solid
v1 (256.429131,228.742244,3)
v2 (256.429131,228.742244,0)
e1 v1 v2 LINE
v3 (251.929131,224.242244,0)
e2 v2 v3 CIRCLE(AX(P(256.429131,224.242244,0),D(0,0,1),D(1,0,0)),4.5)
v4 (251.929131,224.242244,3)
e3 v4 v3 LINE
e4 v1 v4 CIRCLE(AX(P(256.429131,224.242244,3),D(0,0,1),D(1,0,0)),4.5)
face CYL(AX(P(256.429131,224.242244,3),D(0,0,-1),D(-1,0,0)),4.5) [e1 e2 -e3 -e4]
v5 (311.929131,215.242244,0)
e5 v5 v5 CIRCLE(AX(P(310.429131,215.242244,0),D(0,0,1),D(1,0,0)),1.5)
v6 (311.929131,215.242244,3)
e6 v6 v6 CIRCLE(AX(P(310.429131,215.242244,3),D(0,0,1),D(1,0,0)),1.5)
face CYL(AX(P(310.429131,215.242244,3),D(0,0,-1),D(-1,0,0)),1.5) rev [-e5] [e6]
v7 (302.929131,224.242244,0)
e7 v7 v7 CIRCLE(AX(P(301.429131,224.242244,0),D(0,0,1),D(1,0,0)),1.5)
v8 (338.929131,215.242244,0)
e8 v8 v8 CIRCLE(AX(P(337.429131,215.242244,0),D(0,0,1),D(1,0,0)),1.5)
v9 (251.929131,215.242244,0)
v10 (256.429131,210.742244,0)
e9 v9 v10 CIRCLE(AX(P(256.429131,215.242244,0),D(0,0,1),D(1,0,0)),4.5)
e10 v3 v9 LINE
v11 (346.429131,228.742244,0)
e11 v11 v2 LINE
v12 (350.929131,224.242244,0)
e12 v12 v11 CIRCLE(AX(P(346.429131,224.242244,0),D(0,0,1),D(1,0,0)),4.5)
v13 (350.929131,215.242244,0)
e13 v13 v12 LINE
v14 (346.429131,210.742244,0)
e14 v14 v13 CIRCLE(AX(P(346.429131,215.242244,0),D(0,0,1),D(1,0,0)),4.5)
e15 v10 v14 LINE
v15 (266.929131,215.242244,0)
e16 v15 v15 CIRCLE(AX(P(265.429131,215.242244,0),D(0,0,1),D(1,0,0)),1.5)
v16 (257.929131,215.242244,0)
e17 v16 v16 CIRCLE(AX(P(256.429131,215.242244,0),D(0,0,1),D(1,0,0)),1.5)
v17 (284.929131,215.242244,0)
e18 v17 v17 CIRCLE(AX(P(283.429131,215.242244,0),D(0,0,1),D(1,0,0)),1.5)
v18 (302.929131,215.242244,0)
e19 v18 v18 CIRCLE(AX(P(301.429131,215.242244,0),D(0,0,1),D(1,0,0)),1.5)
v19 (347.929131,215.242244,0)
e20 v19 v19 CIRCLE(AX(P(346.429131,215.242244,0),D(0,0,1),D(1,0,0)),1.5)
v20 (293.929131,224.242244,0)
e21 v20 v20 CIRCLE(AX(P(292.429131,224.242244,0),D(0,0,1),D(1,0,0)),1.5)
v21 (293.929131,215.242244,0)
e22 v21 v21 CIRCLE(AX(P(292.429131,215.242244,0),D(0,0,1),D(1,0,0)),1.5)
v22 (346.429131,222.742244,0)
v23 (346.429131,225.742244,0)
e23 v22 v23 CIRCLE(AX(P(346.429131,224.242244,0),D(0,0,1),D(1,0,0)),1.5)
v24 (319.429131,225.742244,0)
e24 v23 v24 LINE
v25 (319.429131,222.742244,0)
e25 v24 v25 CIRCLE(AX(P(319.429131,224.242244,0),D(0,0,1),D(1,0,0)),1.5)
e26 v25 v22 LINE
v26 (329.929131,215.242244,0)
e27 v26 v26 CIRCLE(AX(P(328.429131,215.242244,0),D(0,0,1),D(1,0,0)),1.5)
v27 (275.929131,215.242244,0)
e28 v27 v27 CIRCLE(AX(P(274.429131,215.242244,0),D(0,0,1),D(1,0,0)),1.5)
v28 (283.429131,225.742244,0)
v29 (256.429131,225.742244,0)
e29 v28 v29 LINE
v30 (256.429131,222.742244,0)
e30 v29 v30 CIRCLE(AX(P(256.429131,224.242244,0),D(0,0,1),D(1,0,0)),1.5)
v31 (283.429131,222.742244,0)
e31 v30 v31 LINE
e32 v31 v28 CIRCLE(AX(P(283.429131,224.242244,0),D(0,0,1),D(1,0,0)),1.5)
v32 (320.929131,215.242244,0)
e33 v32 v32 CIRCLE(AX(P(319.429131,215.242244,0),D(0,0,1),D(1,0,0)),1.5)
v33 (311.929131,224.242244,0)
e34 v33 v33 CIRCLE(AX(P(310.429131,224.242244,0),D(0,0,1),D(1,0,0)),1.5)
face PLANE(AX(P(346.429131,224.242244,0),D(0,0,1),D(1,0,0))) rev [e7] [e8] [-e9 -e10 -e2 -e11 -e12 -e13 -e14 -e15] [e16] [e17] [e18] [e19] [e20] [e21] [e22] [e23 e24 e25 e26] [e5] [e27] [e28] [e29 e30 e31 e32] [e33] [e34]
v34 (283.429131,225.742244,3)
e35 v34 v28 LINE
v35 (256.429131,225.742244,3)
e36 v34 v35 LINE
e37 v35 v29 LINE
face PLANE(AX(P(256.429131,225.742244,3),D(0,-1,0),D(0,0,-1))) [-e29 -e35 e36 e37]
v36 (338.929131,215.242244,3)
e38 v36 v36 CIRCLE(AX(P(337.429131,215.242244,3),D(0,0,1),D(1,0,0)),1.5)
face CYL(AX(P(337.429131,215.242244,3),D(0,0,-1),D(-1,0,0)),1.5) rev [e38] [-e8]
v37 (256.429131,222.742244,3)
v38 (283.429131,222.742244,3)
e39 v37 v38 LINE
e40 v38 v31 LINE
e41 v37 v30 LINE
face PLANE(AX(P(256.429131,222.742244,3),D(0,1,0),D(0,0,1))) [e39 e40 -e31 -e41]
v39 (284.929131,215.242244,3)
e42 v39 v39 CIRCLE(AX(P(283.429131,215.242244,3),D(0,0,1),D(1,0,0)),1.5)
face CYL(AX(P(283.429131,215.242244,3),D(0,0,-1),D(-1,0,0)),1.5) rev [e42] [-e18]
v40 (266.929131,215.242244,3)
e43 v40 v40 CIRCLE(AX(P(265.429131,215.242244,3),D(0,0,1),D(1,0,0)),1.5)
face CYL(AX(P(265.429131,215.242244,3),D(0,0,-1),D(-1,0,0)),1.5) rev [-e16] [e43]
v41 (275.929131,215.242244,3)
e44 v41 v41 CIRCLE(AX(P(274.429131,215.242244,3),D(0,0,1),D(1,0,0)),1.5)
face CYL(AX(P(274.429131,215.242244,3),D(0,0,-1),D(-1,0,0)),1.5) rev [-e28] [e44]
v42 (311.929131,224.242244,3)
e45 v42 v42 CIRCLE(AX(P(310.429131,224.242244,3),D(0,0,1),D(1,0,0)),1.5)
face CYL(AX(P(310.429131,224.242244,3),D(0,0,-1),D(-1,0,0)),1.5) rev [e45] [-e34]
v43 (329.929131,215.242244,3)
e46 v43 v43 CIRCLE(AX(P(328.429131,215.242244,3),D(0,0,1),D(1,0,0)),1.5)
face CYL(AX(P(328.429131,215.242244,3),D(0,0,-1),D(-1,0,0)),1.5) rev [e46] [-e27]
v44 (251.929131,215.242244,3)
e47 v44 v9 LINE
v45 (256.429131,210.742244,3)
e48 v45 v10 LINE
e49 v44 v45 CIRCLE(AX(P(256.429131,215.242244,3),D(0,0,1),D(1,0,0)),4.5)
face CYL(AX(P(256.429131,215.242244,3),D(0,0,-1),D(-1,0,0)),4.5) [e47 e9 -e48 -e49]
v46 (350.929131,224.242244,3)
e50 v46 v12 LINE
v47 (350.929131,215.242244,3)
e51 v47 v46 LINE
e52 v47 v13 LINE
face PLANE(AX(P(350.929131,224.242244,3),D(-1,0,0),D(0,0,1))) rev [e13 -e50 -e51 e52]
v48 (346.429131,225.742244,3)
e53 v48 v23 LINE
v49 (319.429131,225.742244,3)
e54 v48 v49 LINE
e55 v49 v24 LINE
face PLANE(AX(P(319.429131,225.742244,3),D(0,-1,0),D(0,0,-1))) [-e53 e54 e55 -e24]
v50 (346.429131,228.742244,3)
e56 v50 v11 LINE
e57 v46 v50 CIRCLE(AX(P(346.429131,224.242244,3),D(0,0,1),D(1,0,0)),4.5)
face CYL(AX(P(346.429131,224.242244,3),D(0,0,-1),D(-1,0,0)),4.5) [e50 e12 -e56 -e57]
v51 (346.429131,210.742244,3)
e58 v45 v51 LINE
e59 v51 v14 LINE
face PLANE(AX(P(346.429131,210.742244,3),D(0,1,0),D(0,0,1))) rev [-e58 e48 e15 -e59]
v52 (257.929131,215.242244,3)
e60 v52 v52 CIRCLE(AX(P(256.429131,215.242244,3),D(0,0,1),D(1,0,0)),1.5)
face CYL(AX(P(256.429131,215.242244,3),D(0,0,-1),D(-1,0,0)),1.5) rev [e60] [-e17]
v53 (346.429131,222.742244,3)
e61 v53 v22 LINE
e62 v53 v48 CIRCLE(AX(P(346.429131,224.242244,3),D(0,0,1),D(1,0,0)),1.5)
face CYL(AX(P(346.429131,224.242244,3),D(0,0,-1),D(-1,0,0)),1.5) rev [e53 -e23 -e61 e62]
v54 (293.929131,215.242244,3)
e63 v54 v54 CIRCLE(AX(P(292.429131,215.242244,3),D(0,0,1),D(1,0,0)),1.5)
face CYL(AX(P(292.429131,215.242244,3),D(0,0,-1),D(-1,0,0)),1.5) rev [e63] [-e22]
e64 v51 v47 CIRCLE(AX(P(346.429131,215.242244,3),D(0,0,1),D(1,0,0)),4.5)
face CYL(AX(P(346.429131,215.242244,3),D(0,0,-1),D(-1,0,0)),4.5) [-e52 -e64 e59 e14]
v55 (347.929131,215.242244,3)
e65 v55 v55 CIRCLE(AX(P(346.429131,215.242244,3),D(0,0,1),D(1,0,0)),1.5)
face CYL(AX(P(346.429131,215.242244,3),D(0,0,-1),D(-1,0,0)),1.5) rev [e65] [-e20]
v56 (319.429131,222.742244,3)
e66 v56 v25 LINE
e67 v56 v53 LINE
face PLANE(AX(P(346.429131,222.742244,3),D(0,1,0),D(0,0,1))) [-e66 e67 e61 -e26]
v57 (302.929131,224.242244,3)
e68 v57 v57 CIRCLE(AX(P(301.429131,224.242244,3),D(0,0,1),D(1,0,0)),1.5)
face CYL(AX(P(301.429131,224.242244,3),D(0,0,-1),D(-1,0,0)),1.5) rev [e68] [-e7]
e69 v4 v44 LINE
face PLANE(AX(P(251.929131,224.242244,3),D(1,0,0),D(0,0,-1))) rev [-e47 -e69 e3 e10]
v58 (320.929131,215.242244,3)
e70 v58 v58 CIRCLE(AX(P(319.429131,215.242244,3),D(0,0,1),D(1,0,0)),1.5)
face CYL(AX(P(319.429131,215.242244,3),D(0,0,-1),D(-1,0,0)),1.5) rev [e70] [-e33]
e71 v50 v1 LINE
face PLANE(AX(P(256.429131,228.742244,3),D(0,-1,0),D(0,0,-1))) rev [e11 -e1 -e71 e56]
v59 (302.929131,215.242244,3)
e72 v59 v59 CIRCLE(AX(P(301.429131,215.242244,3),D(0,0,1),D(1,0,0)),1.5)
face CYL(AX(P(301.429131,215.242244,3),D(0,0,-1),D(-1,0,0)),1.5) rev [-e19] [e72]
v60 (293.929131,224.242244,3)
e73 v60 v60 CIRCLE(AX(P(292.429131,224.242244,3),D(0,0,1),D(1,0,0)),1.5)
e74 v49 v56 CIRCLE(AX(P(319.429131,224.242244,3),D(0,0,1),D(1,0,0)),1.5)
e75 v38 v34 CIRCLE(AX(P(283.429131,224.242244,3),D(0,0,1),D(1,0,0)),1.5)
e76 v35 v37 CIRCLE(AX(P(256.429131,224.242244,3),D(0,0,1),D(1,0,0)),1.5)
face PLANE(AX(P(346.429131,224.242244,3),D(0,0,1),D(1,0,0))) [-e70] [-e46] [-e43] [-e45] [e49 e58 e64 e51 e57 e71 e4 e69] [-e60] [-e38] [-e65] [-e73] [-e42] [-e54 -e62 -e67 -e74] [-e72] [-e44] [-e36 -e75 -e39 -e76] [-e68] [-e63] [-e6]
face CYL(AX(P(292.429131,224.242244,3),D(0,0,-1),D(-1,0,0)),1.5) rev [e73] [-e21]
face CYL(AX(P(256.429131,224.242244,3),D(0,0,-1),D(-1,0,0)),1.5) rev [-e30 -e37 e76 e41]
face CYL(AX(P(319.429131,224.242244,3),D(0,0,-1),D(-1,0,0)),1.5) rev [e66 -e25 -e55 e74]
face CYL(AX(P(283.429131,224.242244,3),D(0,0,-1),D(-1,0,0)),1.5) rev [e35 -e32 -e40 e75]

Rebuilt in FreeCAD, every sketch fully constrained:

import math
import FreeCAD as App
import Part
import Sketcher

doc = App.newDocument("Part")
body = doc.addObject("PartDesign::Body", "Body")

# Sketch on XY plane
sketch1 = doc.addObject("Sketcher::SketchObject", "Sketch")
body.addObject(sketch1)
sketch1.AttachmentSupport = (doc.XY_Plane, [""])
sketch1.MapMode = "FlatFace"
sketch1.addGeometry(Part.LineSegment(App.Vector(346.4, 228.7, 0), App.Vector(256.4, 228.7, 0)), False)
sketch1.addGeometry(Part.ArcOfCircle(Part.Circle(App.Vector(256.4, 224.2, 0), App.Vector(0, 0, 1), 4.5), math.radians(90), math.radians(180)), False)
sketch1.addGeometry(Part.LineSegment(App.Vector(251.9, 224.2, 0), App.Vector(251.9, 215.2, 0)), False)
sketch1.addGeometry(Part.ArcOfCircle(Part.Circle(App.Vector(256.4, 215.2, 0), App.Vector(0, 0, 1), 4.5), math.radians(180), math.radians(270)), False)
sketch1.addGeometry(Part.LineSegment(App.Vector(256.4, 210.7, 0), App.Vector(346.4, 210.7, 0)), False)
sketch1.addGeometry(Part.ArcOfCircle(Part.Circle(App.Vector(346.4, 215.2, 0), App.Vector(0, 0, 1), 4.5), math.radians(-90), math.radians(0)), False)
sketch1.addGeometry(Part.LineSegment(App.Vector(350.9, 215.2, 0), App.Vector(350.9, 224.2, 0)), False)
sketch1.addGeometry(Part.ArcOfCircle(Part.Circle(App.Vector(346.4, 224.2, 0), App.Vector(0, 0, 1), 4.5), math.radians(0), math.radians(90)), False)
sketch1.addGeometry(Part.Circle(App.Vector(346.4, 215.2, 0), App.Vector(0, 0, 1), 1.5), False)
sketch1.addGeometry(Part.Circle(App.Vector(337.4, 215.2, 0), App.Vector(0, 0, 1), 1.5), False)
sketch1.addGeometry(Part.Circle(App.Vector(328.4, 215.2, 0), App.Vector(0, 0, 1), 1.5), False)
sketch1.addGeometry(Part.Circle(App.Vector(319.4, 215.2, 0), App.Vector(0, 0, 1), 1.5), False)
sketch1.addGeometry(Part.Circle(App.Vector(310.4, 215.2, 0), App.Vector(0, 0, 1), 1.5), False)
sketch1.addGeometry(Part.Circle(App.Vector(301.4, 215.2, 0), App.Vector(0, 0, 1), 1.5), False)
sketch1.addGeometry(Part.Circle(App.Vector(292.4, 215.2, 0), App.Vector(0, 0, 1), 1.5), False)
sketch1.addGeometry(Part.Circle(App.Vector(283.4, 215.2, 0), App.Vector(0, 0, 1), 1.5), False)
sketch1.addGeometry(Part.Circle(App.Vector(274.4, 215.2, 0), App.Vector(0, 0, 1), 1.5), False)
sketch1.addGeometry(Part.Circle(App.Vector(265.4, 215.2, 0), App.Vector(0, 0, 1), 1.5), False)
sketch1.addGeometry(Part.Circle(App.Vector(256.4, 215.2, 0), App.Vector(0, 0, 1), 1.5), False)
sketch1.addGeometry(Part.LineSegment(App.Vector(319.4, 225.7, 0), App.Vector(346.4, 225.7, 0)), False)
sketch1.addGeometry(Part.ArcOfCircle(Part.Circle(App.Vector(346.4, 224.2, 0), App.Vector(0, 0, 1), 1.5), math.radians(-90), math.radians(90)), False)
sketch1.addGeometry(Part.LineSegment(App.Vector(346.4, 222.7, 0), App.Vector(319.4, 222.7, 0)), False)
sketch1.addGeometry(Part.ArcOfCircle(Part.Circle(App.Vector(319.4, 224.2, 0), App.Vector(0, 0, 1), 1.5), math.radians(90), math.radians(270)), False)
sketch1.addGeometry(Part.Circle(App.Vector(310.4, 224.2, 0), App.Vector(0, 0, 1), 1.5), False)
sketch1.addGeometry(Part.Circle(App.Vector(301.4, 224.2, 0), App.Vector(0, 0, 1), 1.5), False)
sketch1.addGeometry(Part.Circle(App.Vector(292.4, 224.2, 0), App.Vector(0, 0, 1), 1.5), False)
sketch1.addGeometry(Part.LineSegment(App.Vector(256.4, 225.7, 0), App.Vector(283.4, 225.7, 0)), False)
sketch1.addGeometry(Part.ArcOfCircle(Part.Circle(App.Vector(283.4, 224.2, 0), App.Vector(0, 0, 1), 1.5), math.radians(-90), math.radians(90)), False)
sketch1.addGeometry(Part.LineSegment(App.Vector(283.4, 222.7, 0), App.Vector(256.4, 222.7, 0)), False)
sketch1.addGeometry(Part.ArcOfCircle(Part.Circle(App.Vector(256.4, 224.2, 0), App.Vector(0, 0, 1), 1.5), math.radians(90), math.radians(270)), False)
sketch1.addConstraint(Sketcher.Constraint("Tangent", 0, 2, 1, 1))
sketch1.addConstraint(Sketcher.Constraint("Tangent", 1, 2, 2, 1))
sketch1.addConstraint(Sketcher.Constraint("Tangent", 2, 2, 3, 1))
sketch1.addConstraint(Sketcher.Constraint("Tangent", 3, 2, 4, 1))
sketch1.addConstraint(Sketcher.Constraint("Tangent", 4, 2, 5, 1))
sketch1.addConstraint(Sketcher.Constraint("Tangent", 5, 2, 6, 1))
sketch1.addConstraint(Sketcher.Constraint("Tangent", 6, 2, 7, 1))
sketch1.addConstraint(Sketcher.Constraint("Tangent", 7, 2, 0, 1))
sketch1.addConstraint(Sketcher.Constraint("Tangent", 19, 2, 20, 2))
sketch1.addConstraint(Sketcher.Constraint("Tangent", 20, 1, 21, 1))
sketch1.addConstraint(Sketcher.Constraint("Tangent", 21, 2, 22, 2))
sketch1.addConstraint(Sketcher.Constraint("Tangent", 22, 1, 19, 1))
sketch1.addConstraint(Sketcher.Constraint("Tangent", 26, 2, 27, 2))
sketch1.addConstraint(Sketcher.Constraint("Tangent", 27, 1, 28, 1))
sketch1.addConstraint(Sketcher.Constraint("Tangent", 28, 2, 29, 2))
sketch1.addConstraint(Sketcher.Constraint("Tangent", 29, 1, 26, 1))
sketch1.addConstraint(Sketcher.Constraint("Horizontal", 0))
sketch1.addConstraint(Sketcher.Constraint("Vertical", 2))
sketch1.addConstraint(Sketcher.Constraint("Horizontal", 4))
sketch1.addConstraint(Sketcher.Constraint("Vertical", 6))
sketch1.addConstraint(Sketcher.Constraint("Horizontal", 19))
sketch1.addConstraint(Sketcher.Constraint("Horizontal", 21))
sketch1.addConstraint(Sketcher.Constraint("Horizontal", 26))
sketch1.addConstraint(Sketcher.Constraint("Horizontal", 28))
sketch1.addConstraint(Sketcher.Constraint("Coincident", 8, 3, 5, 3))
sketch1.addConstraint(Sketcher.Constraint("Coincident", 18, 3, 3, 3))
sketch1.addConstraint(Sketcher.Constraint("Coincident", 20, 3, 7, 3))
sketch1.addConstraint(Sketcher.Constraint("Coincident", 29, 3, 1, 3))
sketch1.addConstraint(Sketcher.Constraint("Equal", 1, 3))
sketch1.addConstraint(Sketcher.Constraint("Equal", 3, 5))
sketch1.addConstraint(Sketcher.Constraint("Equal", 5, 7))
sketch1.addConstraint(Sketcher.Constraint("Equal", 8, 9))
sketch1.addConstraint(Sketcher.Constraint("Equal", 9, 10))
sketch1.addConstraint(Sketcher.Constraint("Equal", 10, 11))
sketch1.addConstraint(Sketcher.Constraint("Equal", 11, 12))
sketch1.addConstraint(Sketcher.Constraint("Equal", 12, 13))
sketch1.addConstraint(Sketcher.Constraint("Equal", 13, 14))
sketch1.addConstraint(Sketcher.Constraint("Equal", 14, 15))
sketch1.addConstraint(Sketcher.Constraint("Equal", 15, 16))
sketch1.addConstraint(Sketcher.Constraint("Equal", 16, 17))
sketch1.addConstraint(Sketcher.Constraint("Equal", 17, 18))
sketch1.addConstraint(Sketcher.Constraint("Equal", 18, 20))
sketch1.addConstraint(Sketcher.Constraint("Equal", 22, 23))
sketch1.addConstraint(Sketcher.Constraint("Equal", 23, 24))
sketch1.addConstraint(Sketcher.Constraint("Equal", 24, 25))
sketch1.addConstraint(Sketcher.Constraint("Equal", 25, 27))
sketch1.addConstraint(Sketcher.Constraint("Horizontal", 8, 3, 9, 3))
sketch1.addConstraint(Sketcher.Constraint("Horizontal", 9, 3, 10, 3))
sketch1.addConstraint(Sketcher.Constraint("Horizontal", 10, 3, 11, 3))
sketch1.addConstraint(Sketcher.Constraint("Horizontal", 11, 3, 12, 3))
sketch1.addConstraint(Sketcher.Constraint("Horizontal", 12, 3, 13, 3))
sketch1.addConstraint(Sketcher.Constraint("Horizontal", 13, 3, 14, 3))
sketch1.addConstraint(Sketcher.Constraint("Horizontal", 14, 3, 15, 3))
sketch1.addConstraint(Sketcher.Constraint("Horizontal", 15, 3, 16, 3))
sketch1.addConstraint(Sketcher.Constraint("Horizontal", 16, 3, 17, 3))
sketch1.addConstraint(Sketcher.Constraint("Horizontal", 22, 3, 23, 3))
sketch1.addConstraint(Sketcher.Constraint("Horizontal", 23, 3, 24, 3))
sketch1.addConstraint(Sketcher.Constraint("Horizontal", 24, 3, 25, 3))
sketch1.addConstraint(Sketcher.Constraint("Vertical", 11, 3, 22, 3))
sketch1.addConstraint(Sketcher.Constraint("Vertical", 12, 3, 23, 3))
sketch1.addConstraint(Sketcher.Constraint("Vertical", 13, 3, 24, 3))
sketch1.addConstraint(Sketcher.Constraint("Vertical", 14, 3, 25, 3))
sketch1.addConstraint(Sketcher.Constraint("Vertical", 15, 3, 27, 3))
sketch1.addConstraint(Sketcher.Constraint("Equal", 21, 26))
sketch1.addConstraint(Sketcher.Constraint("Diameter", 8, 3.0))
sketch1.addConstraint(Sketcher.Constraint("Radius", 1, 4.5))
sketch1.addConstraint(Sketcher.Constraint("DistanceX", 0, 2, 0, 1, 90.0))
sketch1.addConstraint(Sketcher.Constraint("DistanceX", 19, 1, 19, 2, 27.0))
sketch1.addConstraint(Sketcher.Constraint("DistanceY", 2, 2, 2, 1, 9.0))
sketch1.addConstraint(Sketcher.Constraint("DistanceX", 9, 3, 5, 3, 9.0))
sketch1.addConstraint(Sketcher.Constraint("DistanceX", 10, 3, 9, 3, 9.0))
sketch1.addConstraint(Sketcher.Constraint("DistanceX", 12, 3, 11, 3, 9.0))
sketch1.addConstraint(Sketcher.Constraint("DistanceX", 13, 3, 12, 3, 9.0))
sketch1.addConstraint(Sketcher.Constraint("DistanceX", 14, 3, 13, 3, 9.0))
sketch1.addConstraint(Sketcher.Constraint("DistanceX", 16, 3, 15, 3, 9.0))
sketch1.addConstraint(Sketcher.Constraint("DistanceX", 17, 3, 16, 3, 9.0))
sketch1.addConstraint(Sketcher.Constraint("DistanceX", -1, 1, 1, 3, 256.429131))
sketch1.addConstraint(Sketcher.Constraint("DistanceY", -1, 1, 1, 3, 224.242244))
pad1 = doc.addObject("PartDesign::Pad", "Pad")
body.addObject(pad1)
pad1.Profile = sketch1
pad1.Length = 3

doc.recompute()
